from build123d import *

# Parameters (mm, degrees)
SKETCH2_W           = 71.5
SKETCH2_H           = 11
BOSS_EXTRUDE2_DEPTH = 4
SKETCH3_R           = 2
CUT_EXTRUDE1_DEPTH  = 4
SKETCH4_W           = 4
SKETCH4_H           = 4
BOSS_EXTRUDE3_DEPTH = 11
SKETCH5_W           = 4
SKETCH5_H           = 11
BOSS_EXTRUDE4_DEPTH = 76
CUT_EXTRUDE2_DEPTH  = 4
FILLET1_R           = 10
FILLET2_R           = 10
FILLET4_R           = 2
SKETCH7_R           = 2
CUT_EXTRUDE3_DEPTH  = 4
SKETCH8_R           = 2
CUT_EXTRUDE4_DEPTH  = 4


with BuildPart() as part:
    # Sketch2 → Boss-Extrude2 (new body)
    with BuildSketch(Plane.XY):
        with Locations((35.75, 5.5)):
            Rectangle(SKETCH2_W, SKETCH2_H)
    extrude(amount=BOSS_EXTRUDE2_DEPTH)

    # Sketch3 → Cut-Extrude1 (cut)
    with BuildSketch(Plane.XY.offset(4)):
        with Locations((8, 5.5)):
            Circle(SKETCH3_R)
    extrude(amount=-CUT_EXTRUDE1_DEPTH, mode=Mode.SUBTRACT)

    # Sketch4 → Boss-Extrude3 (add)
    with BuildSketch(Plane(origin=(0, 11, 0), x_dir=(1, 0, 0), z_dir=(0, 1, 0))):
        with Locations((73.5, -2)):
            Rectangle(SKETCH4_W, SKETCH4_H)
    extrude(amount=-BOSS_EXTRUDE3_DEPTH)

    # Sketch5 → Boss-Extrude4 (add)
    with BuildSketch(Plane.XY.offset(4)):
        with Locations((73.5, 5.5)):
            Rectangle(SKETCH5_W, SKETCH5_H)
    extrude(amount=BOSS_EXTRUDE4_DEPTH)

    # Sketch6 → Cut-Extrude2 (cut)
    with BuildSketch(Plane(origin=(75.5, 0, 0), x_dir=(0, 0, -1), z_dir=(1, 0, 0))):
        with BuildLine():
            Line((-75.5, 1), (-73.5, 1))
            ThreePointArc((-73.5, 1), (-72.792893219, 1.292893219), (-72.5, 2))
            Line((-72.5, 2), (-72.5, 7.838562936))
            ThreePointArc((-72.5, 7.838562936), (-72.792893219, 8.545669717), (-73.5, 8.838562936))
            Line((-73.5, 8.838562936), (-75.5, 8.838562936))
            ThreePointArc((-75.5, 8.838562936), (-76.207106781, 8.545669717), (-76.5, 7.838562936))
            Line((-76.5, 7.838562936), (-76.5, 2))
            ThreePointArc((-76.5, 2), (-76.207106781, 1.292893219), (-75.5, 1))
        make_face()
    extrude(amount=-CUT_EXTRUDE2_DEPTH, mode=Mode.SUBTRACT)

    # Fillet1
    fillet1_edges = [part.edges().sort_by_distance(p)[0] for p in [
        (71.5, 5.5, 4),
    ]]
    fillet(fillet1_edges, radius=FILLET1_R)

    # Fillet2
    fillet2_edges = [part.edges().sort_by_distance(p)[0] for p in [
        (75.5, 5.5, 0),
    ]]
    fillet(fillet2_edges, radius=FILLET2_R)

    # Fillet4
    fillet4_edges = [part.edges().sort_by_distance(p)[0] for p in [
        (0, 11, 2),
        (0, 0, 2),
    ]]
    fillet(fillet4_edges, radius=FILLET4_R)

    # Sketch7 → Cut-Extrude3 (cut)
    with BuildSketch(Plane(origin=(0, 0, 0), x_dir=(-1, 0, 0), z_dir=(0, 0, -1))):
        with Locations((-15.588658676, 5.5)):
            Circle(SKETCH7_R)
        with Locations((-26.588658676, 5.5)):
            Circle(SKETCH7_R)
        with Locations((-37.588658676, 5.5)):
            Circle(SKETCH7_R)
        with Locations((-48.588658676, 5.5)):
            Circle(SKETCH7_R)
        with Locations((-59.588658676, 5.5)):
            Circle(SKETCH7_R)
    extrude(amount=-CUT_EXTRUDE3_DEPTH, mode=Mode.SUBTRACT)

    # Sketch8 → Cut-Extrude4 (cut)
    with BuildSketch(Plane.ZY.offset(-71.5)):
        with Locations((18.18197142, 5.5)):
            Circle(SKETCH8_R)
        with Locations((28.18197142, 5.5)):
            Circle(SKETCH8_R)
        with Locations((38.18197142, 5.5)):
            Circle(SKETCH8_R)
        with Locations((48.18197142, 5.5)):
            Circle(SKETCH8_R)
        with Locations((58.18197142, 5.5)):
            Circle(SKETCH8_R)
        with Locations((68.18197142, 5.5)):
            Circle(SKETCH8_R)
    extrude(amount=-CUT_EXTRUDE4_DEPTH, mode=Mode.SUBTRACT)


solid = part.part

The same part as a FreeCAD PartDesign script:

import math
import FreeCAD as App
import Part
import Sketcher
from FreeCAD import Vector


def edges_at(feature, points):
    """Names of the edges that pass closest to the given points."""
    edges = feature.Shape.Edges
    near = lambda p: min(range(len(edges)), key=lambda i: edges[i].distToShape(Part.Vertex(*p))[0])
    return sorted({f"Edge{near(p) + 1}" for p in points})


def add_polygon(sketch, points):
    """Adds a closed chain of lines whose ends are joined by coincident constraints."""
    first, n = sketch.GeometryCount, len(points)
    for a, b in zip(points, points[1:] + points[:1]):
        sketch.addGeometry(Part.LineSegment(App.Vector(*a, 0), App.Vector(*b, 0)), False)
    for i in range(n):
        sketch.addConstraint(Sketcher.Constraint("Coincident", first + i, 2, first + (i + 1) % n, 1))

doc = App.newDocument("Part")
body = doc.addObject("PartDesign::Body", "Body")

sketch1 = body.newObject("Sketcher::SketchObject", "Sketch")
sketch1.AttachmentSupport = (doc.getObject("XY_Plane"), [""])
sketch1.MapMode = "FlatFace"
add_polygon(sketch1, [(0, 11), (0, 0), (72, 0), (72, 11)])
sketch1.addConstraint(Sketcher.Constraint("Vertical", 0))
sketch1.addConstraint(Sketcher.Constraint("Horizontal", 1))
sketch1.addConstraint(Sketcher.Constraint("Vertical", 2))
sketch1.addConstraint(Sketcher.Constraint("Horizontal", 3))
sketch1.addConstraint(Sketcher.Constraint("Coincident", 0, 2, -1, 1))
sketch1.addConstraint(Sketcher.Constraint("DistanceY", 0, 2, 0, 1, 11.0))
sketch1.addConstraint(Sketcher.Constraint("DistanceX", 1, 1, 1, 2, 71.5))
pad1 = body.newObject("PartDesign::Pad", "Pad")
pad1.Profile = sketch1
pad1.Length = 4

sketch2 = body.newObject("Sketcher::SketchObject", "Sketch001")
sketch2.AttachmentSupport = (doc.getObject("XY_Plane"), [""])
sketch2.MapMode = "FlatFace"
sketch2.AttachmentOffset = App.Placement(Vector(0, 0, 4), App.Rotation())
sketch2.addGeometry(Part.Circle(Vector(8, 5.5, 0), Vector(0, 0, 1), 2), False)
sketch2.addConstraint(Sketcher.Constraint("Diameter", 0, 4.0))
sketch2.addConstraint(Sketcher.Constraint("DistanceX", -1, 1, 0, 3, 8.0))
sketch2.addConstraint(Sketcher.Constraint("DistanceY", -1, 1, 0, 3, 5.5))
pocket1 = body.newObject("PartDesign::Pocket", "Pocket")
pocket1.Profile = sketch2
pocket1.Length = 4

sketch3 = body.newObject("Sketcher::SketchObject", "Sketch002")
sketch3.AttachmentSupport = (doc.getObject("XZ_Plane"), [""])
sketch3.MapMode = "FlatFace"
sketch3.AttachmentOffset = App.Placement(Vector(0, 0, -11), App.Rotation())
add_polygon(sketch3, [(71.5, 0), (71.5, 4), (75.5, 4), (75.5, 0)])
sketch3.addConstraint(Sketcher.Constraint("Vertical", 0))
sketch3.addConstraint(Sketcher.Constraint("Horizontal", 1))
sketch3.addConstraint(Sketcher.Constraint("Vertical", 2))
sketch3.addConstraint(Sketcher.Constraint("Horizontal", 3))
sketch3.addConstraint(Sketcher.Constraint("PointOnObject", 2, 2, -1))
sketch3.addConstraint(Sketcher.Constraint("Equal", 3, 0))
sketch3.addConstraint(Sketcher.Constraint("DistanceX", 1, 1, 1, 2, 4.0))
sketch3.addConstraint(Sketcher.Constraint("DistanceX", -1, 1, 0, 2, 71.5))
pad2 = body.newObject("PartDesign::Pad", "Pad001")
pad2.Profile = sketch3
pad2.Length = 11

sketch4 = body.newObject("Sketcher::SketchObject", "Sketch003")
sketch4.AttachmentSupport = (doc.getObject("XY_Plane"), [""])
sketch4.MapMode = "FlatFace"
sketch4.AttachmentOffset = App.Placement(Vector(0, 0, 4), App.Rotation())
add_polygon(sketch4, [(71.5, 11), (71.5, 0), (75.5, 0), (75.5, 11)])
sketch4.addConstraint(Sketcher.Constraint("Vertical", 0))
sketch4.addConstraint(Sketcher.Constraint("Horizontal", 1))
sketch4.addConstraint(Sketcher.Constraint("Vertical", 2))
sketch4.addConstraint(Sketcher.Constraint("Horizontal", 3))
sketch4.addConstraint(Sketcher.Constraint("PointOnObject", 0, 2, -1))
sketch4.addConstraint(Sketcher.Constraint("DistanceX", 1, 1, 1, 2, 4.0))
sketch4.addConstraint(Sketcher.Constraint("DistanceY", 0, 2, 0, 1, 11.0))
sketch4.addConstraint(Sketcher.Constraint("DistanceX", -1, 1, 0, 2, 71.5))
pad3 = body.newObject("PartDesign::Pad", "Pad002")
pad3.Profile = sketch4
pad3.Length = 76

sketch5 = body.newObject("Sketcher::SketchObject", "Sketch004")
sketch5.AttachmentSupport = (doc.getObject("YZ_Plane"), [""])
sketch5.MapMode = "FlatFace"
sketch5.AttachmentOffset = App.Placement(Vector(0, 0, 75.5), App.Rotation())
sketch5.addGeometry(Part.LineSegment(Vector(1, 75.5, 0), Vector(1, 73.5, 0)), False)
sketch5.addGeometry(Part.ArcOfCircle(Part.Circle(Vector(2, 73.5, 0), Vector(0, 0, 1), 1), math.radians(-180), math.radians(-90)), False)
sketch5.addGeometry(Part.LineSegment(Vector(2, 72.5, 0), Vector(7.8, 72.5, 0)), False)
sketch5.addGeometry(Part.ArcOfCircle(Part.Circle(Vector(7.8, 73.5, 0), Vector(0, 0, 1), 1), math.radians(-90), math.radians(0)), False)
sketch5.addGeometry(Part.LineSegment(Vector(8.8, 73.5, 0), Vector(8.8, 75.5, 0)), False)
sketch5.addGeometry(Part.ArcOfCircle(Part.Circle(Vector(7.8, 75.5, 0), Vector(0, 0, 1), 1), math.radians(0), math.radians(90)), False)
sketch5.addGeometry(Part.LineSegment(Vector(7.8, 76.5, 0), Vector(2, 76.5, 0)), False)
sketch5.addGeometry(Part.ArcOfCircle(Part.Circle(Vector(2, 75.5, 0), Vector(0, 0, 1), 1), math.radians(90), math.radians(180)), False)
sketch5.addConstraint(Sketcher.Constraint("Tangent", 0, 2, 1, 1))
sketch5.addConstraint(Sketcher.Constraint("Tangent", 1, 2, 2, 1))
sketch5.addConstraint(Sketcher.Constraint("Tangent", 2, 2, 3, 1))
sketch5.addConstraint(Sketcher.Constraint("Tangent", 3, 2, 4, 1))
sketch5.addConstraint(Sketcher.Constraint("Tangent", 4, 2, 5, 1))
sketch5.addConstraint(Sketcher.Constraint("Tangent", 5, 2, 6, 1))
sketch5.addConstraint(Sketcher.Constraint("Tangent", 6, 2, 7, 1))
sketch5.addConstraint(Sketcher.Constraint("Tangent", 7, 2, 0, 1))
sketch5.addConstraint(Sketcher.Constraint("Vertical", 0))
sketch5.addConstraint(Sketcher.Constraint("Horizontal", 2))
sketch5.addConstraint(Sketcher.Constraint("Vertical", 4))
sketch5.addConstraint(Sketcher.Constraint("Horizontal", 6))
sketch5.addConstraint(Sketcher.Constraint("Equal", 1, 3))
sketch5.addConstraint(Sketcher.Constraint("Equal", 3, 5))
sketch5.addConstraint(Sketcher.Constraint("Equal", 5, 7))
sketch5.addConstraint(Sketcher.Constraint("Radius", 1, 1.0))
sketch5.addConstraint(Sketcher.Constraint("DistanceY", 0, 2, 0, 1, 2.0))
sketch5.addConstraint(Sketcher.Constraint("DistanceX", -1, 1, 1, 3, 2.0))
sketch5.addConstraint(Sketcher.Constraint("DistanceY", -1, 1, 1, 3, 73.5))
sketch5.addConstraint(Sketcher.Constraint("DistanceX", 2, 1, 2, 2, 5.838563))
pocket2 = body.newObject("PartDesign::Pocket", "Pocket001")
pocket2.Profile = sketch5
pocket2.Length = 4
doc.recompute()

fillet = body.newObject("PartDesign::Fillet", "Fillet")
fillet.Base = (pocket2, edges_at(pocket2, [(71.5, 5.5, 4)]))
fillet.Radius = 10
doc.recompute()

fillet2 = body.newObject("PartDesign::Fillet", "Fillet001")
fillet2.Base = (fillet, edges_at(fillet, [(75.5, 5.5, 0)]))
fillet2.Radius = 10
doc.recompute()

fillet3 = body.newObject("PartDesign::Fillet", "Fillet002")
fillet3.Base = (fillet2, edges_at(fillet2, [(0, 11, 2), (0, 0, 2)]))
fillet3.Radius = 2

sketch6 = body.newObject("Sketcher::SketchObject", "Sketch005")
sketch6.AttachmentSupport = (doc.getObject("XY_Plane"), [""])
sketch6.MapMode = "FlatFace"
sketch6.addGeometry(Part.Circle(Vector(15.6, 5.5, 0), Vector(0, 0, 1), 2), False)
sketch6.addGeometry(Part.Circle(Vector(26.6, 5.5, 0), Vector(0, 0, 1), 2), False)
sketch6.addGeometry(Part.Circle(Vector(37.6, 5.5, 0), Vector(0, 0, 1), 2), False)
sketch6.addGeometry(Part.Circle(Vector(48.6, 5.5, 0), Vector(0, 0, 1), 2), False)
sketch6.addGeometry(Part.Circle(Vector(59.6, 5.5, 0), Vector(0, 0, 1), 2), False)
sketch6.addConstraint(Sketcher.Constraint("Equal", 0, 1))
sketch6.addConstraint(Sketcher.Constraint("Equal", 1, 2))
sketch6.addConstraint(Sketcher.Constraint("Equal", 2, 3))
sketch6.addConstraint(Sketcher.Constraint("Equal", 3, 4))
sketch6.addConstraint(Sketcher.Constraint("Horizontal", 0, 3, 1, 3))
sketch6.addConstraint(Sketcher.Constraint("Horizontal", 1, 3, 2, 3))
sketch6.addConstraint(Sketcher.Constraint("Horizontal", 2, 3, 3, 3))
sketch6.addConstraint(Sketcher.Constraint("Horizontal", 3, 3, 4, 3))
sketch6.addConstraint(Sketcher.Constraint("Diameter", 0, 4.0))
sketch6.addConstraint(Sketcher.Constraint("DistanceX", 0, 3, 1, 3, 11.0))
sketch6.addConstraint(Sketcher.Constraint("DistanceX", 1, 3, 2, 3, 11.0))
sketch6.addConstraint(Sketcher.Constraint("DistanceX", 2, 3, 3, 3, 11.0))
sketch6.addConstraint(Sketcher.Constraint("DistanceX", 3, 3, 4, 3, 11.0))
sketch6.addConstraint(Sketcher.Constraint("DistanceY", -1, 1, 0, 3, 5.5))
sketch6.addConstraint(Sketcher.Constraint("DistanceX", -1, 1, 0, 3, 15.588659))
pocket3 = body.newObject("PartDesign::Pocket", "Pocket002")
pocket3.Profile = sketch6
pocket3.Length = 4
pocket3.Reversed = True

sketch7 = body.newObject("Sketcher::SketchObject", "Sketch006")
sketch7.AttachmentSupport = (doc.getObject("YZ_Plane"), [""])
sketch7.MapMode = "FlatFace"
sketch7.AttachmentOffset = App.Placement(Vector(0, 0, 71.5), App.Rotation())
sketch7.addGeometry(Part.Circle(Vector(5.5, 18.2, 0), Vector(0, 0, 1), 2), False)
sketch7.addGeometry(Part.Circle(Vector(5.5, 28.2, 0), Vector(0, 0, 1), 2), False)
sketch7.addGeometry(Part.Circle(Vector(5.5, 38.2, 0), Vector(0, 0, 1), 2), False)
sketch7.addGeometry(Part.Circle(Vector(5.5, 48.2, 0), Vector(0, 0, 1), 2), False)
sketch7.addGeometry(Part.Circle(Vector(5.5, 58.2, 0), Vector(0, 0, 1), 2), False)
sketch7.addGeometry(Part.Circle(Vector(5.5, 68.2, 0), Vector(0, 0, 1), 2), False)
sketch7.addConstraint(Sketcher.Constraint("Equal", 0, 1))
sketch7.addConstraint(Sketcher.Constraint("Equal", 1, 2))
sketch7.addConstraint(Sketcher.Constraint("Equal", 2, 3))
sketch7.addConstraint(Sketcher.Constraint("Equal", 3, 4))
sketch7.addConstraint(Sketcher.Constraint("Equal", 4, 5))
sketch7.addConstraint(Sketcher.Constraint("Vertical", 0, 3, 1, 3))
sketch7.addConstraint(Sketcher.Constraint("Vertical", 1, 3, 2, 3))
sketch7.addConstraint(Sketcher.Constraint("Vertical", 2, 3, 3, 3))
sketch7.addConstraint(Sketcher.Constraint("Vertical", 3, 3, 4, 3))
sketch7.addConstraint(Sketcher.Constraint("Vertical", 4, 3, 5, 3))
sketch7.addConstraint(Sketcher.Constraint("Diameter", 0, 4.0))
sketch7.addConstraint(Sketcher.Constraint("DistanceY", 0, 3, 1, 3, 10.0))
sketch7.addConstraint(Sketcher.Constraint("DistanceY", 1, 3, 2, 3, 10.0))
sketch7.addConstraint(Sketcher.Constraint("DistanceY", 2, 3, 3, 3, 10.0))
sketch7.addConstraint(Sketcher.Constraint("DistanceY", 3, 3, 4, 3, 10.0))
sketch7.addConstraint(Sketcher.Constraint("DistanceY", 4, 3, 5, 3, 10.0))
sketch7.addConstraint(Sketcher.Constraint("DistanceX", -1, 1, 0, 3, 5.5))
sketch7.addConstraint(Sketcher.Constraint("DistanceY", -1, 1, 0, 3, 18.181971))
pocket4 = body.newObject("PartDesign::Pocket", "Pocket003")
pocket4.Profile = sketch7
pocket4.Length = 4
pocket4.Reversed = True

doc.recompute()
